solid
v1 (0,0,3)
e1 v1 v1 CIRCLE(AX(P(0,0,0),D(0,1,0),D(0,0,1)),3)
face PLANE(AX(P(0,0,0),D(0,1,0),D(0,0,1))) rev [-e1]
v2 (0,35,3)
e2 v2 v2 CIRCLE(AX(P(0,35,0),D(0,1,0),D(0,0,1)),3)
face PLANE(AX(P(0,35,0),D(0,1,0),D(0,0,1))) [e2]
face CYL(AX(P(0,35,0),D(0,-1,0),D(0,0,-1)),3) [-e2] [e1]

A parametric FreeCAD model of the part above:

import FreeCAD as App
import Part
import Sketcher
from FreeCAD import Vector

doc = App.newDocument("Part")
body = doc.addObject("PartDesign::Body", "Body")

sketch1 = body.newObject("Sketcher::SketchObject", "Sketch")
sketch1.AttachmentSupport = (doc.getObject("XZ_Plane"), [""])
sketch1.MapMode = "FlatFace"
sketch1.addGeometry(Part.Circle(Vector(0, 0, 0), Vector(0, 0, 1), 3), False)
sketch1.addConstraint([
    Sketcher.Constraint("Coincident", 0, 3, -1, 1),
    Sketcher.Constraint("Diameter", 0, 6.0),
])
pad1 = body.newObject("PartDesign::Pad", "Pad")
pad1.Profile = sketch1
pad1.Length = 35
pad1.Reversed = True

doc.recompute()
